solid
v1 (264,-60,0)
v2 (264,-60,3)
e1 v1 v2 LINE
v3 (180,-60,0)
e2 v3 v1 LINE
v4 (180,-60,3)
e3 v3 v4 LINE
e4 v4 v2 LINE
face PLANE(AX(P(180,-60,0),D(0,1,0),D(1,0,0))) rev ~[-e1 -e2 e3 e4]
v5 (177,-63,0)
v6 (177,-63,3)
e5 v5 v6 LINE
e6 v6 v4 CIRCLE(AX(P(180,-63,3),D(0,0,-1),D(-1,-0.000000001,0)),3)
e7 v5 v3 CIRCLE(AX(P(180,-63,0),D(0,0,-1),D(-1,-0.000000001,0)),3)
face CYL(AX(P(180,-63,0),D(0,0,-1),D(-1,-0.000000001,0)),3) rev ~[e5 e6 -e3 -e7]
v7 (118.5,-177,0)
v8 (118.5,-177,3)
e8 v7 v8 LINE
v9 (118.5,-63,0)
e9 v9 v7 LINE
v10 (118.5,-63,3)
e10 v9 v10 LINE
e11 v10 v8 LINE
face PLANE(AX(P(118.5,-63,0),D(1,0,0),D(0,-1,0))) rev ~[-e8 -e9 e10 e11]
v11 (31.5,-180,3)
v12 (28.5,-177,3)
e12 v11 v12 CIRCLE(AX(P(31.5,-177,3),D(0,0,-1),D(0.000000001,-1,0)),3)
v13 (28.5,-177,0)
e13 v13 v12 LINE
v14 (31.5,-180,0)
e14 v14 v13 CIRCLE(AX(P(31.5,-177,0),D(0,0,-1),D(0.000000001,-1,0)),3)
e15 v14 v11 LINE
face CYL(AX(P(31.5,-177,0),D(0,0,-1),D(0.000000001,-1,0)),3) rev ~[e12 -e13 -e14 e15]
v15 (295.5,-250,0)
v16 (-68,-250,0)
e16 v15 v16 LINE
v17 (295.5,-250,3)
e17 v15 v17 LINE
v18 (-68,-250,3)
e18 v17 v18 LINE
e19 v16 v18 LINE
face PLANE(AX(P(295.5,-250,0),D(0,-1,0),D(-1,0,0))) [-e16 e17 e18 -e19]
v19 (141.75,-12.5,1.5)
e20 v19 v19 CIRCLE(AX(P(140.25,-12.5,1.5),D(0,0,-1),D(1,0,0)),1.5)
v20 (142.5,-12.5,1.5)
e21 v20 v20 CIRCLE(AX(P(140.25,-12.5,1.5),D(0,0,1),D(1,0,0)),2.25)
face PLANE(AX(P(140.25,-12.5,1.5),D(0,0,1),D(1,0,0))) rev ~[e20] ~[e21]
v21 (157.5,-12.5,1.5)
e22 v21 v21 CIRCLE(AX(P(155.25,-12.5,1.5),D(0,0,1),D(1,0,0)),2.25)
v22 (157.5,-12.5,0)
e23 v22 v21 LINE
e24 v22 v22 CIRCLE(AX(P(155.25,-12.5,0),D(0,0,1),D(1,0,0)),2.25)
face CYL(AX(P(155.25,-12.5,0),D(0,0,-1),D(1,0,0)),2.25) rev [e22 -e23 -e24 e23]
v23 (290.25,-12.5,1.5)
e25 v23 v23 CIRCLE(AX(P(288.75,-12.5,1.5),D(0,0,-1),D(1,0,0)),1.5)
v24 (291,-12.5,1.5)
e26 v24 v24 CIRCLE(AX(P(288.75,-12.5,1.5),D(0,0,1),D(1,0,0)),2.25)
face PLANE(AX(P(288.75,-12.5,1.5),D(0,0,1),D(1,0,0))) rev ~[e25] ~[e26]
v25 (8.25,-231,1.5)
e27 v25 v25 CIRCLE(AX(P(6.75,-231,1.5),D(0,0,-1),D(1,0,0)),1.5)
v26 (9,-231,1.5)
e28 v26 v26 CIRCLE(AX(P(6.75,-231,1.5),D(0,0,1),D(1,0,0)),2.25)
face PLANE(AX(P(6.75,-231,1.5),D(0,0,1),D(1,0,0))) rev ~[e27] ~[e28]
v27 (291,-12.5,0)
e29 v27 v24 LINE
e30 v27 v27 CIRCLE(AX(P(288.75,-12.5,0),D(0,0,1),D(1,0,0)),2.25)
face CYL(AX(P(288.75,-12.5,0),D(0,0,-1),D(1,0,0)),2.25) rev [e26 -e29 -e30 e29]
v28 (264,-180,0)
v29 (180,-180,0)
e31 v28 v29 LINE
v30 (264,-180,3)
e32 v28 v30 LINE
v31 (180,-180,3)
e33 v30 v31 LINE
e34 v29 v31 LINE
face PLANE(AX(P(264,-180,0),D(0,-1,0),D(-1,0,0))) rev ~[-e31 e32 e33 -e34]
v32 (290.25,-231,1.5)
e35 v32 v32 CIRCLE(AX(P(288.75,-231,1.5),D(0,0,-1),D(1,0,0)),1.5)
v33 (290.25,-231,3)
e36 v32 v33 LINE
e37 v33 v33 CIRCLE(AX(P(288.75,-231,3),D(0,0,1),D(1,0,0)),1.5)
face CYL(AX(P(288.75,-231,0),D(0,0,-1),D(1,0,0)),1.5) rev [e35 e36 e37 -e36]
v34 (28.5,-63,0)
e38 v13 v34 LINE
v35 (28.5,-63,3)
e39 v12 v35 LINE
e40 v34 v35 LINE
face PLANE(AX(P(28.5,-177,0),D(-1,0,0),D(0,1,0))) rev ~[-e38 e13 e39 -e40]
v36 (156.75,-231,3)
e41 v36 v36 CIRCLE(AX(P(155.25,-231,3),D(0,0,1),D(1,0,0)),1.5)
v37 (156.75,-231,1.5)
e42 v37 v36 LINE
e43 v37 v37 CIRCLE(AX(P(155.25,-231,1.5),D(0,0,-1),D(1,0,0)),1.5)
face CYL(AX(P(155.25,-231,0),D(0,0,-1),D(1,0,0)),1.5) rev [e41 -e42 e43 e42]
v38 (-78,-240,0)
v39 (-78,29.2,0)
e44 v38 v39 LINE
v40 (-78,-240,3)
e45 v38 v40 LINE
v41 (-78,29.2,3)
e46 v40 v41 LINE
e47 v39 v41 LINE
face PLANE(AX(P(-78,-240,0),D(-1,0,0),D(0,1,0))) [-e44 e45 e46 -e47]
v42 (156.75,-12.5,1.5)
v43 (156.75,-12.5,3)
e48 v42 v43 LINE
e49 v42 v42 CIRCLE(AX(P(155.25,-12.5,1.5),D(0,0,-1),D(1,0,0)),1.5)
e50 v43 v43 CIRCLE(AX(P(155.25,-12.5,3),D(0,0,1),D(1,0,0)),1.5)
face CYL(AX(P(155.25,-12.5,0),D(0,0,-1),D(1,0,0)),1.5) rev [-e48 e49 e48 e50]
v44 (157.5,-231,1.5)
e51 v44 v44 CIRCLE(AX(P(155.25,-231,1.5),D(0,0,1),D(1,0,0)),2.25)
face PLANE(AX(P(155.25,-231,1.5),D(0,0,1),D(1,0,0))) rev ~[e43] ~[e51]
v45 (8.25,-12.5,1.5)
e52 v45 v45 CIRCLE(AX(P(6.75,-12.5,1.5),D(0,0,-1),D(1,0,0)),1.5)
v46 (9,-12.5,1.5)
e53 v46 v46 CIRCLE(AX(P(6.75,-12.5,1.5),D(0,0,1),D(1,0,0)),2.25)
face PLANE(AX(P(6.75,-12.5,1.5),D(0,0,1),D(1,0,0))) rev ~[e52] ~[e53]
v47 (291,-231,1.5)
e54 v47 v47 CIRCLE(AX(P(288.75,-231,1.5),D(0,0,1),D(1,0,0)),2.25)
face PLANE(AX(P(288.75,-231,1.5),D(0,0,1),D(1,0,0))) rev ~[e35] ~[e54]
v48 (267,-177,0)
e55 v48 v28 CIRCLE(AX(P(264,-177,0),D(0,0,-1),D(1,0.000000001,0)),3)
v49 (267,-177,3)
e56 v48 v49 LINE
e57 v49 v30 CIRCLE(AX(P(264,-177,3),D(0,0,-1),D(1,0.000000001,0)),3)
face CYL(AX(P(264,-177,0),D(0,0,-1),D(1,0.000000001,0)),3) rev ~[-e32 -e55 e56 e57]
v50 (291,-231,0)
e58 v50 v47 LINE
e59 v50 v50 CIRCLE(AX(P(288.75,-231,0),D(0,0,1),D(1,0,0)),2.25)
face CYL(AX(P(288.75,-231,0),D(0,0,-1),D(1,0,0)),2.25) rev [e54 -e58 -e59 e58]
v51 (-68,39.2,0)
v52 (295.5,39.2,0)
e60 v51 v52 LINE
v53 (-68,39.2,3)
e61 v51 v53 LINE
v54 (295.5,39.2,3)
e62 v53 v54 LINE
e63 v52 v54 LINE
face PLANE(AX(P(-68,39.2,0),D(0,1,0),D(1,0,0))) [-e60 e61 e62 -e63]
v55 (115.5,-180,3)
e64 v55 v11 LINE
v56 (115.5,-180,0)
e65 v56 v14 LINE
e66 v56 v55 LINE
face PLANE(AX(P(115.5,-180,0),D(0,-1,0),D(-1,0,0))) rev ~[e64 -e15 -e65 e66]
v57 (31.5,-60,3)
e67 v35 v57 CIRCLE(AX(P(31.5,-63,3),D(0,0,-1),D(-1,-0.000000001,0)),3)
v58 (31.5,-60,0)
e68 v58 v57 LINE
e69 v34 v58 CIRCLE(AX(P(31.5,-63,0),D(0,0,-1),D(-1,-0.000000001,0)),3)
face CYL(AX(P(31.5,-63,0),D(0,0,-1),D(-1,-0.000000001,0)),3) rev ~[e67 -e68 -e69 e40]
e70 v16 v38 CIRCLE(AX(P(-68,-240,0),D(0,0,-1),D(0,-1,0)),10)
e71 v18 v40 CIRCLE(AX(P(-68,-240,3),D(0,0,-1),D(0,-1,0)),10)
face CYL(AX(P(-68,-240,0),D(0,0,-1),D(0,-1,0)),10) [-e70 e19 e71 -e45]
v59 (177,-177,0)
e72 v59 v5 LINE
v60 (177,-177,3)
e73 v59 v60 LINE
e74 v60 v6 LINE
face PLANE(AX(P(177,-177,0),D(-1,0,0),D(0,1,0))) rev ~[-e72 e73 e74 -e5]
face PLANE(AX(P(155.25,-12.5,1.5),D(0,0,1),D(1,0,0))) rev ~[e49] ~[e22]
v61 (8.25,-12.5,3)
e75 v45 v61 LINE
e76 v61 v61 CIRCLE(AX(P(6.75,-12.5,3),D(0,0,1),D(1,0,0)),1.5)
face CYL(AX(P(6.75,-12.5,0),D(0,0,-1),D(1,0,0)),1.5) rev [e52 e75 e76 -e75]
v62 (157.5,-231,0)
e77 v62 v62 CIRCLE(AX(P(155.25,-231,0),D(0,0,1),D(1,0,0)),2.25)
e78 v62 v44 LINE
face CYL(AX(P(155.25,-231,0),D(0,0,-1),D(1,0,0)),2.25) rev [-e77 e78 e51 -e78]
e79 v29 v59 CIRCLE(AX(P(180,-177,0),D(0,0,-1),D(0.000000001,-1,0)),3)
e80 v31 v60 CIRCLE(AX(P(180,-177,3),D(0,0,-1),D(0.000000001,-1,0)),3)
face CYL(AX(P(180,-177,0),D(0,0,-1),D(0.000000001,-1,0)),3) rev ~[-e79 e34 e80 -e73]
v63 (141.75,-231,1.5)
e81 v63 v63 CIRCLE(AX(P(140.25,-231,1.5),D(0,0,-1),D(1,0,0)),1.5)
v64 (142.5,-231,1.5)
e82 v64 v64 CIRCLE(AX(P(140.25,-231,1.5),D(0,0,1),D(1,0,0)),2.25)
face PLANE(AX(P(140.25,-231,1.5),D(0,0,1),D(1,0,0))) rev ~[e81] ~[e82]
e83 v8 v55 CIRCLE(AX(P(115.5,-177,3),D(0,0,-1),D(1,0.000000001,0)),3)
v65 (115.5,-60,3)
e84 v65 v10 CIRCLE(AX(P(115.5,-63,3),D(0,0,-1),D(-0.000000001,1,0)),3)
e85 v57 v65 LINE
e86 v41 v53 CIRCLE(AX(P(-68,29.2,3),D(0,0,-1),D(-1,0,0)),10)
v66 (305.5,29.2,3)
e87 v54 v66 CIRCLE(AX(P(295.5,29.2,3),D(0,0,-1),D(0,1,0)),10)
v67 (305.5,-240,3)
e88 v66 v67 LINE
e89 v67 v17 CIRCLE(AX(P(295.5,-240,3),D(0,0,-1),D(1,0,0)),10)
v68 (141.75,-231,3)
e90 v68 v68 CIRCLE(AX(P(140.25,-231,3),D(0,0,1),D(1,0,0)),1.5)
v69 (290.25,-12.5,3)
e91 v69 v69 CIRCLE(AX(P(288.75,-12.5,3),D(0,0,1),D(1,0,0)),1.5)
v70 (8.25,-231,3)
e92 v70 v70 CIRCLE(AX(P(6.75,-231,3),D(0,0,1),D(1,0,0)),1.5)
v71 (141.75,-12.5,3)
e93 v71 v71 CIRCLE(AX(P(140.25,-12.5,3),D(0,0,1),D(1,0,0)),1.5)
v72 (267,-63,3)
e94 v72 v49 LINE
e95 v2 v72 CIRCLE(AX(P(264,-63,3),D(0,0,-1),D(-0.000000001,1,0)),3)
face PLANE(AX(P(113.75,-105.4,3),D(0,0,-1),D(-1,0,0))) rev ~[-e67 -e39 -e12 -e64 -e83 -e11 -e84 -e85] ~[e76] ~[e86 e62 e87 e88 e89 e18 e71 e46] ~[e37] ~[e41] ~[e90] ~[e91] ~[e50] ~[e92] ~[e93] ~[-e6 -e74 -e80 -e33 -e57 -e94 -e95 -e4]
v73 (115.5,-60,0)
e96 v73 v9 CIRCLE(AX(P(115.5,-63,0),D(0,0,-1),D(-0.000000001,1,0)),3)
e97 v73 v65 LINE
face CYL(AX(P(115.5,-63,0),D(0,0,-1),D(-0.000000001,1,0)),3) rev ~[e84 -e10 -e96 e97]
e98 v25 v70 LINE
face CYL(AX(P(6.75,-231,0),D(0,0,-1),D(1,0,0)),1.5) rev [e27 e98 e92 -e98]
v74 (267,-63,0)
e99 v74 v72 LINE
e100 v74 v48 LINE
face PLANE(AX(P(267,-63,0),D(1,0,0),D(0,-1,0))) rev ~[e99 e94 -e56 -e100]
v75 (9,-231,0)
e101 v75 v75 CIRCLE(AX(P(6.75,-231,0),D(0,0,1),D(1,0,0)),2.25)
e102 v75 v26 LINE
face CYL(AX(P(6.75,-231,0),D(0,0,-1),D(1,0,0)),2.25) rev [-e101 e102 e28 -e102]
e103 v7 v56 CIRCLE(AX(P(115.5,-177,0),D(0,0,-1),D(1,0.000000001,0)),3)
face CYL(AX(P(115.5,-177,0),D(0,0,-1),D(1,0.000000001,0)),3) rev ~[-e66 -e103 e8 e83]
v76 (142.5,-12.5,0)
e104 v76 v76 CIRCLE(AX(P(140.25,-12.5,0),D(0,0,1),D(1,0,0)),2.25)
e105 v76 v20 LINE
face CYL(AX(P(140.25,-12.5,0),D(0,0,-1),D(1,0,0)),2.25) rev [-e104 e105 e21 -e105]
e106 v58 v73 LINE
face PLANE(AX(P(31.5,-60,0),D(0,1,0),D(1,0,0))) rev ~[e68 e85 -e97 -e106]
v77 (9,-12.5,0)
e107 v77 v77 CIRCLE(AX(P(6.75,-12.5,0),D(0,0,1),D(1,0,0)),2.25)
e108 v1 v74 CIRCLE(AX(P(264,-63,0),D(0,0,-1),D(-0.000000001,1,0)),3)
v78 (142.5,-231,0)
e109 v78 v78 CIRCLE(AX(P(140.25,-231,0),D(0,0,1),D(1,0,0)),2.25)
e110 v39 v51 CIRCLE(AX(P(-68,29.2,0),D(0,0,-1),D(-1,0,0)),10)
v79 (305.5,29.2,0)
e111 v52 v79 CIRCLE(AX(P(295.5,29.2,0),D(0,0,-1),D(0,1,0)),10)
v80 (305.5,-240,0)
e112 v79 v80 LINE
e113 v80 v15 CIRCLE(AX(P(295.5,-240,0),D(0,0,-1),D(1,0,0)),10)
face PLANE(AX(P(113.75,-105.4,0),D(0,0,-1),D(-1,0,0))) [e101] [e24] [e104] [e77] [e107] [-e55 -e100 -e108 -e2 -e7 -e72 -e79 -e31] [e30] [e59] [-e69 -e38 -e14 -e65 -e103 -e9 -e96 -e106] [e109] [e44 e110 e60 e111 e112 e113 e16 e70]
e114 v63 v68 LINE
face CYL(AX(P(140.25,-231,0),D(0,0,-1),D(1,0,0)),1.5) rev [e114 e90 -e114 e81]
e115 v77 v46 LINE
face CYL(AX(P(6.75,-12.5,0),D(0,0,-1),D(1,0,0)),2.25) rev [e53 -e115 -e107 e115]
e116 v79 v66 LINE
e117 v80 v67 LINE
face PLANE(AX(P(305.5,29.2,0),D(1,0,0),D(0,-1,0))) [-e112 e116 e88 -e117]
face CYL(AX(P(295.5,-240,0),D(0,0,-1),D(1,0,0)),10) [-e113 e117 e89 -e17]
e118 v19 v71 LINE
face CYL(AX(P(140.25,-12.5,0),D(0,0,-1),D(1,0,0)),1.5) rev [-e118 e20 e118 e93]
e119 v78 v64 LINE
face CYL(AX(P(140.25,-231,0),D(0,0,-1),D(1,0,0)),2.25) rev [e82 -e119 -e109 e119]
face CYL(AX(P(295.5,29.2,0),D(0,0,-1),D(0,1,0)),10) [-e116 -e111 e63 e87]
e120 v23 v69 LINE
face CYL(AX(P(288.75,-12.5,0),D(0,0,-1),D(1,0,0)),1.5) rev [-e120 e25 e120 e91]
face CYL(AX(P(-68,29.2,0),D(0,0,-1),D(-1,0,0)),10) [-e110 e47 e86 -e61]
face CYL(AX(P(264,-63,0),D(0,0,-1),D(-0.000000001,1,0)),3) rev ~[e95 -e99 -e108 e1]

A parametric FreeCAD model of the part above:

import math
import FreeCAD as App
import Part
import Sketcher
from FreeCAD import Vector
Q = App.Units.Quantity

doc = App.newDocument("Part")
body = doc.addObject("PartDesign::Body", "Body")

# Sketch on XY plane
sketch1 = body.newObject("Sketcher::SketchObject", "Sketch")
sketch1.AttachmentSupport = (doc.getObject("XY_Plane"), [""])
sketch1.MapMode = "FlatFace"
sketch1.addGeometry([
    Part.LineSegment(Vector(295.5, 39.2, 0), Vector(-68, 39.2, 0)),  # 0
    Part.ArcOfCircle(Part.Circle(Vector(-68, 29.2, 0), Vector(0, 0, 1), 10), math.radians(90), math.radians(180)),  # 1
    Part.LineSegment(Vector(-78, 29.2, 0), Vector(-78, -240, 0)),  # 2
    Part.ArcOfCircle(Part.Circle(Vector(-68, -240, 0), Vector(0, 0, 1), 10), math.radians(180), math.radians(270)),  # 3
    Part.LineSegment(Vector(-68, -250, 0), Vector(295.5, -250, 0)),  # 4
    Part.ArcOfCircle(Part.Circle(Vector(295.5, -240, 0), Vector(0, 0, 1), 10), math.radians(-90), math.radians(0)),  # 5
    Part.LineSegment(Vector(305.5, -240, 0), Vector(305.5, 29.2, 0)),  # 6
    Part.ArcOfCircle(Part.Circle(Vector(295.5, 29.2, 0), Vector(0, 0, 1), 10), math.radians(0), math.radians(90)),  # 7
], False)
sketch1.addConstraint([
    Sketcher.Constraint("Tangent", 0, 2, 1, 1),
    Sketcher.Constraint("Tangent", 1, 2, 2, 1),
    Sketcher.Constraint("Tangent", 2, 2, 3, 1),
    Sketcher.Constraint("Tangent", 3, 2, 4, 1),
    Sketcher.Constraint("Tangent", 4, 2, 5, 1),
    Sketcher.Constraint("Tangent", 5, 2, 6, 1),
    Sketcher.Constraint("Tangent", 6, 2, 7, 1),
    Sketcher.Constraint("Tangent", 7, 2, 0, 1),
    Sketcher.Constraint("Horizontal", 0),
    Sketcher.Constraint("Vertical", 2),
    Sketcher.Constraint("Horizontal", 4),
    Sketcher.Constraint("Vertical", 6),
    Sketcher.Constraint("Equal", 1, 3),
    Sketcher.Constraint("Equal", 3, 5),
    Sketcher.Constraint("Equal", 5, 7),
    Sketcher.Constraint("Radius", 1, Q("10 mm")),
    Sketcher.Constraint("DistanceX", 0, 2, 0, 1, Q("363.5 mm")),
    Sketcher.Constraint("DistanceY", 2, 2, 2, 1, Q("269.2 mm")),
    Sketcher.Constraint("DistanceX", 1, 3, -1, 1, Q("68 mm")),
    Sketcher.Constraint("DistanceY", 3, 3, -1, 1, Q("240 mm")),
])
pad1 = body.newObject("PartDesign::Pad", "Pad")
pad1.Profile = sketch1
pad1.Length = 3

# Sketch on XY plane
sketch2 = body.newObject("Sketcher::SketchObject", "Sketch001")
sketch2.AttachmentSupport = (doc.getObject("XY_Plane"), [""])
sketch2.MapMode = "FlatFace"
sketch2.addGeometry([
    Part.Circle(Vector(6.75, -12.5, 0), Vector(0, 0, 1), 2.25),  # 0
    Part.Circle(Vector(140.25, -12.5, 0), Vector(0, 0, 1), 2.25),  # 1
    Part.Circle(Vector(140.25, -231, 0), Vector(0, 0, 1), 2.25),  # 2
    Part.Circle(Vector(6.75, -231, 0), Vector(0, 0, 1), 2.25),  # 3
    Part.Circle(Vector(155.25, -12.5, 0), Vector(0, 0, 1), 2.25),  # 4
    Part.Circle(Vector(288.75, -12.5, 0), Vector(0, 0, 1), 2.25),  # 5
    Part.Circle(Vector(288.75, -231, 0), Vector(0, 0, 1), 2.25),  # 6
    Part.Circle(Vector(155.25, -231, 0), Vector(0, 0, 1), 2.25),  # 7
], False)
sketch2.addConstraint([
    Sketcher.Constraint("Equal", 0, 1),
    Sketcher.Constraint("Equal", 1, 2),
    Sketcher.Constraint("Equal", 2, 3),
    Sketcher.Constraint("Equal", 3, 4),
    Sketcher.Constraint("Equal", 4, 5),
    Sketcher.Constraint("Equal", 5, 6),
    Sketcher.Constraint("Equal", 6, 7),
    Sketcher.Constraint("Horizontal", 0, 3, 1, 3),
    Sketcher.Constraint("Horizontal", 2, 3, 3, 3),
    Sketcher.Constraint("Horizontal", 1, 3, 4, 3),
    Sketcher.Constraint("Horizontal", 4, 3, 5, 3),
    Sketcher.Constraint("Horizontal", 3, 3, 6, 3),
    Sketcher.Constraint("Horizontal", 6, 3, 7, 3),
    Sketcher.Constraint("Vertical", 1, 3, 2, 3),
    Sketcher.Constraint("Vertical", 0, 3, 3, 3),
    Sketcher.Constraint("Vertical", 5, 3, 6, 3),
    Sketcher.Constraint("Vertical", 4, 3, 7, 3),
    Sketcher.Constraint("Diameter", 0, Q("4.5 mm")),
    Sketcher.Constraint("DistanceY", 2, 3, -1, 1, Q("231 mm")),
    Sketcher.Constraint("DistanceX", 1, 3, 4, 3, Q("15 mm")),
    Sketcher.Constraint("DistanceX", 0, 3, 5, 3, Q("282 mm")),
    Sketcher.Constraint("DistanceY", 0, 3, -1, 1, Q("12.5 mm")),
    Sketcher.Constraint("DistanceX", 0, 3, 1, 3, Q("133.5 mm")),
    Sketcher.Constraint("DistanceX", -1, 1, 0, 3, Q("6.75 mm")),
])
pocket1 = body.newObject("PartDesign::Pocket", "Pocket")
pocket1.Profile = sketch2
pocket1.Length = 1.5
pocket1.Reversed = True

# Sketch on XY plane
sketch3 = body.newObject("Sketcher::SketchObject", "Sketch002")
sketch3.AttachmentSupport = (doc.getObject("XY_Plane"), [""])
sketch3.MapMode = "FlatFace"
sketch3.addGeometry([
    Part.Circle(Vector(6.75, -12.5, 0), Vector(0, 0, 1), 1.5),  # 0
    Part.Circle(Vector(140.25, -12.5, 0), Vector(0, 0, 1), 1.5),  # 1
    Part.Circle(Vector(140.25, -231, 0), Vector(0, 0, 1), 1.5),  # 2
    Part.Circle(Vector(6.75, -231, 0), Vector(0, 0, 1), 1.5),  # 3
    Part.Circle(Vector(155.25, -12.5, 0), Vector(0, 0, 1), 1.5),  # 4
    Part.Circle(Vector(288.75, -12.5, 0), Vector(0, 0, 1), 1.5),  # 5
    Part.Circle(Vector(288.75, -231, 0), Vector(0, 0, 1), 1.5),  # 6
    Part.Circle(Vector(155.25, -231, 0), Vector(0, 0, 1), 1.5),  # 7
    Part.LineSegment(Vector(115.5, -60, 0), Vector(31.5, -60, 0)),  # 8
    Part.ArcOfCircle(Part.Circle(Vector(31.5, -63, 0), Vector(0, 0, 1), 3), math.radians(90), math.radians(180)),  # 9
    Part.LineSegment(Vector(28.5, -63, 0), Vector(28.5, -177, 0)),  # 10
    Part.ArcOfCircle(Part.Circle(Vector(31.5, -177, 0), Vector(0, 0, 1), 3), math.radians(180), math.radians(270)),  # 11
    Part.LineSegment(Vector(31.5, -180, 0), Vector(115.5, -180, 0)),  # 12
    Part.ArcOfCircle(Part.Circle(Vector(115.5, -177, 0), Vector(0, 0, 1), 3), math.radians(-90), math.radians(0)),  # 13
    Part.LineSegment(Vector(118.5, -177, 0), Vector(118.5, -63, 0)),  # 14
    Part.ArcOfCircle(Part.Circle(Vector(115.5, -63, 0), Vector(0, 0, 1), 3), math.radians(0), math.radians(90)),  # 15
    Part.LineSegment(Vector(264, -60, 0), Vector(180, -60, 0)),  # 16
    Part.ArcOfCircle(Part.Circle(Vector(180, -63, 0), Vector(0, 0, 1), 3), math.radians(90), math.radians(180)),  # 17
    Part.LineSegment(Vector(177, -63, 0), Vector(177, -177, 0)),  # 18
    Part.ArcOfCircle(Part.Circle(Vector(180, -177, 0), Vector(0, 0, 1), 3), math.radians(180), math.radians(270)),  # 19
    Part.LineSegment(Vector(180, -180, 0), Vector(264, -180, 0)),  # 20
    Part.ArcOfCircle(Part.Circle(Vector(264, -177, 0), Vector(0, 0, 1), 3), math.radians(-90), math.radians(0)),  # 21
    Part.LineSegment(Vector(267, -177, 0), Vector(267, -63, 0)),  # 22
    Part.ArcOfCircle(Part.Circle(Vector(264, -63, 0), Vector(0, 0, 1), 3), math.radians(0), math.radians(90)),  # 23
], False)
sketch3.addConstraint([
    Sketcher.Constraint("Tangent", 8, 2, 9, 1),
    Sketcher.Constraint("Tangent", 9, 2, 10, 1),
    Sketcher.Constraint("Tangent", 10, 2, 11, 1),
    Sketcher.Constraint("Tangent", 11, 2, 12, 1),
    Sketcher.Constraint("Tangent", 12, 2, 13, 1),
    Sketcher.Constraint("Tangent", 13, 2, 14, 1),
    Sketcher.Constraint("Tangent", 14, 2, 15, 1),
    Sketcher.Constraint("Tangent", 15, 2, 8, 1),
    Sketcher.Constraint("Tangent", 16, 2, 17, 1),
    Sketcher.Constraint("Tangent", 17, 2, 18, 1),
    Sketcher.Constraint("Tangent", 18, 2, 19, 1),
    Sketcher.Constraint("Tangent", 19, 2, 20, 1),
    Sketcher.Constraint("Tangent", 20, 2, 21, 1),
    Sketcher.Constraint("Tangent", 21, 2, 22, 1),
    Sketcher.Constraint("Tangent", 22, 2, 23, 1),
    Sketcher.Constraint("Tangent", 23, 2, 16, 1),
    Sketcher.Constraint("Horizontal", 8),
    Sketcher.Constraint("Vertical", 10),
    Sketcher.Constraint("Horizontal", 12),
    Sketcher.Constraint("Vertical", 14),
    Sketcher.Constraint("Horizontal", 16),
    Sketcher.Constraint("Vertical", 18),
    Sketcher.Constraint("Horizontal", 20),
    Sketcher.Constraint("Vertical", 22),
    Sketcher.Constraint("Equal", 0, 1),
    Sketcher.Constraint("Equal", 1, 2),
    Sketcher.Constraint("Equal", 2, 3),
    Sketcher.Constraint("Equal", 3, 4),
    Sketcher.Constraint("Equal", 4, 5),
    Sketcher.Constraint("Equal", 5, 6),
    Sketcher.Constraint("Equal", 6, 7),
    Sketcher.Constraint("Equal", 9, 11),
    Sketcher.Constraint("Equal", 11, 13),
    Sketcher.Constraint("Equal", 13, 15),
    Sketcher.Constraint("Equal", 15, 17),
    Sketcher.Constraint("Equal", 17, 19),
    Sketcher.Constraint("Equal", 19, 21),
    Sketcher.Constraint("Equal", 21, 23),
    Sketcher.Constraint("Horizontal", 0, 3, 1, 3),
    Sketcher.Constraint("Horizontal", 2, 3, 3, 3),
    Sketcher.Constraint("Horizontal", 1, 3, 4, 3),
    Sketcher.Constraint("Horizontal", 4, 3, 5, 3),
    Sketcher.Constraint("Horizontal", 3, 3, 6, 3),
    Sketcher.Constraint("Horizontal", 6, 3, 7, 3),
    Sketcher.Constraint("Horizontal", 15, 3, 17, 3),
    Sketcher.Constraint("Horizontal", 13, 3, 19, 3),
    Sketcher.Constraint("Vertical", 1, 3, 2, 3),
    Sketcher.Constraint("Vertical", 0, 3, 3, 3),
    Sketcher.Constraint("Vertical", 5, 3, 6, 3),
    Sketcher.Constraint("Vertical", 4, 3, 7, 3),
    Sketcher.Constraint("Equal", 12, 16),
    Sketcher.Constraint("Diameter", 0, Q("3 mm")),
    Sketcher.Constraint("Radius", 9, Q("3 mm")),
    Sketcher.Constraint("DistanceX", 8, 2, 8, 1, Q("84 mm")),
    Sketcher.Constraint("DistanceY", 10, 2, 10, 1, Q("114 mm")),
    Sketcher.Constraint("DistanceY", 2, 3, -1, 1, Q("231 mm")),
    Sketcher.Constraint("DistanceY", 9, 3, -1, 1, Q("63 mm")),
    Sketcher.Constraint("DistanceX", -1, 1, 17, 3, Q("180 mm")),
    Sketcher.Constraint("DistanceX", 1, 3, 4, 3, Q("15 mm")),
    Sketcher.Constraint("DistanceX", 0, 3, 5, 3, Q("282 mm")),
    Sketcher.Constraint("DistanceY", 0, 3, -1, 1, Q("12.5 mm")),
    Sketcher.Constraint("DistanceX", -1, 1, 9, 3, Q("31.5 mm")),
    Sketcher.Constraint("DistanceX", 0, 3, 1, 3, Q("133.5 mm")),
    Sketcher.Constraint("DistanceX", -1, 1, 0, 3, Q("6.75 mm")),
])
pocket2 = body.newObject("PartDesign::Pocket", "Pocket001")
pocket2.Profile = sketch3
pocket2.Length = 3
pocket2.Reversed = True

doc.recompute()
